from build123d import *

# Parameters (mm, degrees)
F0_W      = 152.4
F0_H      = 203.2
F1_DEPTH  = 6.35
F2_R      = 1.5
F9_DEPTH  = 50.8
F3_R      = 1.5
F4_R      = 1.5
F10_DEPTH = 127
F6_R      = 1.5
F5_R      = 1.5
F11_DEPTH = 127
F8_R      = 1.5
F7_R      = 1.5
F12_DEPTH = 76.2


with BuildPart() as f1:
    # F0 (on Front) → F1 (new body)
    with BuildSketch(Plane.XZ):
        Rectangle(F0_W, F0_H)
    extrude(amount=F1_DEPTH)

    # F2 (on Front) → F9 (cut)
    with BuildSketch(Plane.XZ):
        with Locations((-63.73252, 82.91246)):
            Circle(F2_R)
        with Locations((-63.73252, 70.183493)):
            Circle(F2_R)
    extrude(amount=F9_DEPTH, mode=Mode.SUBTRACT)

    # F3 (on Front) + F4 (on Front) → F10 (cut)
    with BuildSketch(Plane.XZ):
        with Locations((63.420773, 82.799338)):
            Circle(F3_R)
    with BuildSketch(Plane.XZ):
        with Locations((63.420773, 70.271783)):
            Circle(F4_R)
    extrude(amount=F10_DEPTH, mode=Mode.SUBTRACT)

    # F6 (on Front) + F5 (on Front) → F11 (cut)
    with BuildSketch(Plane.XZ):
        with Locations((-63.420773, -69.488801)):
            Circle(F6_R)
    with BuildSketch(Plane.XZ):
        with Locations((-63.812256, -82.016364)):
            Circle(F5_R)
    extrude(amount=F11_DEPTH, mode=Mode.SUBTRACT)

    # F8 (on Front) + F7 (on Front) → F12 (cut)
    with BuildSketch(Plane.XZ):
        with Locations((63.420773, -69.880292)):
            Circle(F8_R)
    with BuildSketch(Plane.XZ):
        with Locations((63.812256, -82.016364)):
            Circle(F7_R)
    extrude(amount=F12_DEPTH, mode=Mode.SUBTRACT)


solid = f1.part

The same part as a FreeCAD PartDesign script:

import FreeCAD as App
import Part
import Sketcher
Q = App.Units.Quantity

doc = App.newDocument("Part")
body = doc.addObject("PartDesign::Body", "Body")

sketch1 = doc.addObject("Sketcher::SketchObject", "Sketch")
body.addObject(sketch1)
sketch1.AttachmentSupport = (doc.XZ_Plane, [""])
sketch1.MapMode = "FlatFace"
sketch1.addGeometry(Part.LineSegment(App.Vector(-76, 102, 0), App.Vector(-76, -102, 0)), False)
sketch1.addGeometry(Part.LineSegment(App.Vector(-76, -102, 0), App.Vector(76, -102, 0)), False)
sketch1.addGeometry(Part.LineSegment(App.Vector(76, -102, 0), App.Vector(76, 102, 0)), False)
sketch1.addGeometry(Part.LineSegment(App.Vector(76, 102, 0), App.Vector(-76, 102, 0)), False)
sketch1.addConstraint(Sketcher.Constraint("Coincident", 0, 2, 1, 1))
sketch1.addConstraint(Sketcher.Constraint("Coincident", 1, 2, 2, 1))
sketch1.addConstraint(Sketcher.Constraint("Coincident", 2, 2, 3, 1))
sketch1.addConstraint(Sketcher.Constraint("Coincident", 3, 2, 0, 1))
sketch1.addConstraint(Sketcher.Constraint("Vertical", 0))
sketch1.addConstraint(Sketcher.Constraint("Horizontal", 1))
sketch1.addConstraint(Sketcher.Constraint("Vertical", 2))
sketch1.addConstraint(Sketcher.Constraint("Horizontal", 3))
sketch1.addConstraint(Sketcher.Constraint("Symmetric", 0, 2, 2, 2, -1, 1))
sketch1.addConstraint(Sketcher.Constraint("DistanceX", 1, 1, 1, 2, Q("6 in")))
sketch1.addConstraint(Sketcher.Constraint("DistanceY", 0, 2, 0, 1, Q("8 in")))
pad1 = doc.addObject("PartDesign::Pad", "Pad")
body.addObject(pad1)
pad1.Profile = sketch1
pad1.Length = Q("0.25 in")

sketch2 = doc.addObject("Sketcher::SketchObject", "Sketch001")
body.addObject(sketch2)
sketch2.AttachmentSupport = (doc.XZ_Plane, [""])
sketch2.MapMode = "FlatFace"
sketch2.addGeometry(Part.Circle(App.Vector(-63.7, 82.9, 0), App.Vector(0, 0, 1), 1.5), False)
sketch2.addGeometry(Part.Circle(App.Vector(-63.7, 70.2, 0), App.Vector(0, 0, 1), 1.5), False)
sketch2.addConstraint(Sketcher.Constraint("Equal", 0, 1))
sketch2.addConstraint(Sketcher.Constraint("Vertical", 0, 3, 1, 3))
sketch2.addConstraint(Sketcher.Constraint("Diameter", 0, Q("3 mm")))
sketch2.addConstraint(Sketcher.Constraint("DistanceX", 0, 3, -1, 1, Q("63.73252 mm")))
sketch2.addConstraint(Sketcher.Constraint("DistanceY", -1, 1, 0, 3, Q("82.91246 mm")))
sketch2.addConstraint(Sketcher.Constraint("DistanceY", -1, 1, 1, 3, Q("70.183493 mm")))
pocket1 = doc.addObject("PartDesign::Pocket", "Pocket")
body.addObject(pocket1)
pocket1.Profile = sketch2
pocket1.Length = Q("2 in")
pocket1.Reversed = True

sketch3 = doc.addObject("Sketcher::SketchObject", "Sketch002")
body.addObject(sketch3)
sketch3.AttachmentSupport = (doc.XZ_Plane, [""])
sketch3.MapMode = "FlatFace"
sketch3.addGeometry(Part.Circle(App.Vector(63.4, 82.8, 0), App.Vector(0, 0, 1), 1.5), False)
sketch3.addGeometry(Part.Circle(App.Vector(63.4, 70.3, 0), App.Vector(0, 0, 1), 1.5), False)
sketch3.addConstraint(Sketcher.Constraint("Equal", 0, 1))
sketch3.addConstraint(Sketcher.Constraint("Vertical", 0, 3, 1, 3))
sketch3.addConstraint(Sketcher.Constraint("Diameter", 0, Q("3 mm")))
sketch3.addConstraint(Sketcher.Constraint("DistanceY", -1, 1, 0, 3, Q("82.799338 mm")))
sketch3.addConstraint(Sketcher.Constraint("DistanceX", -1, 1, 0, 3, Q("63.420773 mm")))
sketch3.addConstraint(Sketcher.Constraint("DistanceY", -1, 1, 1, 3, Q("70.271783 mm")))
pocket2 = doc.addObject("PartDesign::Pocket", "Pocket001")
body.addObject(pocket2)
pocket2.Profile = sketch3
pocket2.Length = Q("5 in")
pocket2.Reversed = True

sketch4 = doc.addObject("Sketcher::SketchObject", "Sketch003")
body.addObject(sketch4)
sketch4.AttachmentSupport = (doc.XZ_Plane, [""])
sketch4.MapMode = "FlatFace"
sketch4.addGeometry(Part.Circle(App.Vector(-63.4, -69.5, 0), App.Vector(0, 0, 1), 1.5), False)
sketch4.addGeometry(Part.Circle(App.Vector(-63.8, -82, 0), App.Vector(0, 0, 1), 1.5), False)
sketch4.addConstraint(Sketcher.Constraint("Equal", 0, 1))
sketch4.addConstraint(Sketcher.Constraint("Diameter", 0, Q("3 mm")))
sketch4.addConstraint(Sketcher.Constraint("DistanceY", 0, 3, -1, 1, Q("69.488801 mm")))
sketch4.addConstraint(Sketcher.Constraint("DistanceX", 0, 3, -1, 1, Q("63.420773 mm")))
sketch4.addConstraint(Sketcher.Constraint("DistanceX", 1, 3, -1, 1, Q("63.812256 mm")))
sketch4.addConstraint(Sketcher.Constraint("DistanceY", 1, 3, -1, 1, Q("82.016364 mm")))
pocket3 = doc.addObject("PartDesign::Pocket", "Pocket002")
body.addObject(pocket3)
pocket3.Profile = sketch4
pocket3.Length = Q("5 in")
pocket3.Reversed = True

sketch5 = doc.addObject("Sketcher::SketchObject", "Sketch004")
body.addObject(sketch5)
sketch5.AttachmentSupport = (doc.XZ_Plane, [""])
sketch5.MapMode = "FlatFace"
sketch5.addGeometry(Part.Circle(App.Vector(63.4, -69.9, 0), App.Vector(0, 0, 1), 1.5), False)
sketch5.addGeometry(Part.Circle(App.Vector(63.8, -82, 0), App.Vector(0, 0, 1), 1.5), False)
sketch5.addConstraint(Sketcher.Constraint("Equal", 0, 1))
sketch5.addConstraint(Sketcher.Constraint("Diameter", 0, Q("3 mm")))
sketch5.addConstraint(Sketcher.Constraint("DistanceY", 0, 3, -1, 1, Q("69.880292 mm")))
sketch5.addConstraint(Sketcher.Constraint("DistanceY", 1, 3, 0, 3, Q("12.136072 mm")))
sketch5.addConstraint(Sketcher.Constraint("DistanceX", -1, 1, 0, 3, Q("63.420773 mm")))
sketch5.addConstraint(Sketcher.Constraint("DistanceX", -1, 1, 1, 3, Q("63.812256 mm")))
pocket4 = doc.addObject("PartDesign::Pocket", "Pocket003")
body.addObject(pocket4)
pocket4.Profile = sketch5
pocket4.Length = Q("3 in")
pocket4.Reversed = True

doc.recompute()
